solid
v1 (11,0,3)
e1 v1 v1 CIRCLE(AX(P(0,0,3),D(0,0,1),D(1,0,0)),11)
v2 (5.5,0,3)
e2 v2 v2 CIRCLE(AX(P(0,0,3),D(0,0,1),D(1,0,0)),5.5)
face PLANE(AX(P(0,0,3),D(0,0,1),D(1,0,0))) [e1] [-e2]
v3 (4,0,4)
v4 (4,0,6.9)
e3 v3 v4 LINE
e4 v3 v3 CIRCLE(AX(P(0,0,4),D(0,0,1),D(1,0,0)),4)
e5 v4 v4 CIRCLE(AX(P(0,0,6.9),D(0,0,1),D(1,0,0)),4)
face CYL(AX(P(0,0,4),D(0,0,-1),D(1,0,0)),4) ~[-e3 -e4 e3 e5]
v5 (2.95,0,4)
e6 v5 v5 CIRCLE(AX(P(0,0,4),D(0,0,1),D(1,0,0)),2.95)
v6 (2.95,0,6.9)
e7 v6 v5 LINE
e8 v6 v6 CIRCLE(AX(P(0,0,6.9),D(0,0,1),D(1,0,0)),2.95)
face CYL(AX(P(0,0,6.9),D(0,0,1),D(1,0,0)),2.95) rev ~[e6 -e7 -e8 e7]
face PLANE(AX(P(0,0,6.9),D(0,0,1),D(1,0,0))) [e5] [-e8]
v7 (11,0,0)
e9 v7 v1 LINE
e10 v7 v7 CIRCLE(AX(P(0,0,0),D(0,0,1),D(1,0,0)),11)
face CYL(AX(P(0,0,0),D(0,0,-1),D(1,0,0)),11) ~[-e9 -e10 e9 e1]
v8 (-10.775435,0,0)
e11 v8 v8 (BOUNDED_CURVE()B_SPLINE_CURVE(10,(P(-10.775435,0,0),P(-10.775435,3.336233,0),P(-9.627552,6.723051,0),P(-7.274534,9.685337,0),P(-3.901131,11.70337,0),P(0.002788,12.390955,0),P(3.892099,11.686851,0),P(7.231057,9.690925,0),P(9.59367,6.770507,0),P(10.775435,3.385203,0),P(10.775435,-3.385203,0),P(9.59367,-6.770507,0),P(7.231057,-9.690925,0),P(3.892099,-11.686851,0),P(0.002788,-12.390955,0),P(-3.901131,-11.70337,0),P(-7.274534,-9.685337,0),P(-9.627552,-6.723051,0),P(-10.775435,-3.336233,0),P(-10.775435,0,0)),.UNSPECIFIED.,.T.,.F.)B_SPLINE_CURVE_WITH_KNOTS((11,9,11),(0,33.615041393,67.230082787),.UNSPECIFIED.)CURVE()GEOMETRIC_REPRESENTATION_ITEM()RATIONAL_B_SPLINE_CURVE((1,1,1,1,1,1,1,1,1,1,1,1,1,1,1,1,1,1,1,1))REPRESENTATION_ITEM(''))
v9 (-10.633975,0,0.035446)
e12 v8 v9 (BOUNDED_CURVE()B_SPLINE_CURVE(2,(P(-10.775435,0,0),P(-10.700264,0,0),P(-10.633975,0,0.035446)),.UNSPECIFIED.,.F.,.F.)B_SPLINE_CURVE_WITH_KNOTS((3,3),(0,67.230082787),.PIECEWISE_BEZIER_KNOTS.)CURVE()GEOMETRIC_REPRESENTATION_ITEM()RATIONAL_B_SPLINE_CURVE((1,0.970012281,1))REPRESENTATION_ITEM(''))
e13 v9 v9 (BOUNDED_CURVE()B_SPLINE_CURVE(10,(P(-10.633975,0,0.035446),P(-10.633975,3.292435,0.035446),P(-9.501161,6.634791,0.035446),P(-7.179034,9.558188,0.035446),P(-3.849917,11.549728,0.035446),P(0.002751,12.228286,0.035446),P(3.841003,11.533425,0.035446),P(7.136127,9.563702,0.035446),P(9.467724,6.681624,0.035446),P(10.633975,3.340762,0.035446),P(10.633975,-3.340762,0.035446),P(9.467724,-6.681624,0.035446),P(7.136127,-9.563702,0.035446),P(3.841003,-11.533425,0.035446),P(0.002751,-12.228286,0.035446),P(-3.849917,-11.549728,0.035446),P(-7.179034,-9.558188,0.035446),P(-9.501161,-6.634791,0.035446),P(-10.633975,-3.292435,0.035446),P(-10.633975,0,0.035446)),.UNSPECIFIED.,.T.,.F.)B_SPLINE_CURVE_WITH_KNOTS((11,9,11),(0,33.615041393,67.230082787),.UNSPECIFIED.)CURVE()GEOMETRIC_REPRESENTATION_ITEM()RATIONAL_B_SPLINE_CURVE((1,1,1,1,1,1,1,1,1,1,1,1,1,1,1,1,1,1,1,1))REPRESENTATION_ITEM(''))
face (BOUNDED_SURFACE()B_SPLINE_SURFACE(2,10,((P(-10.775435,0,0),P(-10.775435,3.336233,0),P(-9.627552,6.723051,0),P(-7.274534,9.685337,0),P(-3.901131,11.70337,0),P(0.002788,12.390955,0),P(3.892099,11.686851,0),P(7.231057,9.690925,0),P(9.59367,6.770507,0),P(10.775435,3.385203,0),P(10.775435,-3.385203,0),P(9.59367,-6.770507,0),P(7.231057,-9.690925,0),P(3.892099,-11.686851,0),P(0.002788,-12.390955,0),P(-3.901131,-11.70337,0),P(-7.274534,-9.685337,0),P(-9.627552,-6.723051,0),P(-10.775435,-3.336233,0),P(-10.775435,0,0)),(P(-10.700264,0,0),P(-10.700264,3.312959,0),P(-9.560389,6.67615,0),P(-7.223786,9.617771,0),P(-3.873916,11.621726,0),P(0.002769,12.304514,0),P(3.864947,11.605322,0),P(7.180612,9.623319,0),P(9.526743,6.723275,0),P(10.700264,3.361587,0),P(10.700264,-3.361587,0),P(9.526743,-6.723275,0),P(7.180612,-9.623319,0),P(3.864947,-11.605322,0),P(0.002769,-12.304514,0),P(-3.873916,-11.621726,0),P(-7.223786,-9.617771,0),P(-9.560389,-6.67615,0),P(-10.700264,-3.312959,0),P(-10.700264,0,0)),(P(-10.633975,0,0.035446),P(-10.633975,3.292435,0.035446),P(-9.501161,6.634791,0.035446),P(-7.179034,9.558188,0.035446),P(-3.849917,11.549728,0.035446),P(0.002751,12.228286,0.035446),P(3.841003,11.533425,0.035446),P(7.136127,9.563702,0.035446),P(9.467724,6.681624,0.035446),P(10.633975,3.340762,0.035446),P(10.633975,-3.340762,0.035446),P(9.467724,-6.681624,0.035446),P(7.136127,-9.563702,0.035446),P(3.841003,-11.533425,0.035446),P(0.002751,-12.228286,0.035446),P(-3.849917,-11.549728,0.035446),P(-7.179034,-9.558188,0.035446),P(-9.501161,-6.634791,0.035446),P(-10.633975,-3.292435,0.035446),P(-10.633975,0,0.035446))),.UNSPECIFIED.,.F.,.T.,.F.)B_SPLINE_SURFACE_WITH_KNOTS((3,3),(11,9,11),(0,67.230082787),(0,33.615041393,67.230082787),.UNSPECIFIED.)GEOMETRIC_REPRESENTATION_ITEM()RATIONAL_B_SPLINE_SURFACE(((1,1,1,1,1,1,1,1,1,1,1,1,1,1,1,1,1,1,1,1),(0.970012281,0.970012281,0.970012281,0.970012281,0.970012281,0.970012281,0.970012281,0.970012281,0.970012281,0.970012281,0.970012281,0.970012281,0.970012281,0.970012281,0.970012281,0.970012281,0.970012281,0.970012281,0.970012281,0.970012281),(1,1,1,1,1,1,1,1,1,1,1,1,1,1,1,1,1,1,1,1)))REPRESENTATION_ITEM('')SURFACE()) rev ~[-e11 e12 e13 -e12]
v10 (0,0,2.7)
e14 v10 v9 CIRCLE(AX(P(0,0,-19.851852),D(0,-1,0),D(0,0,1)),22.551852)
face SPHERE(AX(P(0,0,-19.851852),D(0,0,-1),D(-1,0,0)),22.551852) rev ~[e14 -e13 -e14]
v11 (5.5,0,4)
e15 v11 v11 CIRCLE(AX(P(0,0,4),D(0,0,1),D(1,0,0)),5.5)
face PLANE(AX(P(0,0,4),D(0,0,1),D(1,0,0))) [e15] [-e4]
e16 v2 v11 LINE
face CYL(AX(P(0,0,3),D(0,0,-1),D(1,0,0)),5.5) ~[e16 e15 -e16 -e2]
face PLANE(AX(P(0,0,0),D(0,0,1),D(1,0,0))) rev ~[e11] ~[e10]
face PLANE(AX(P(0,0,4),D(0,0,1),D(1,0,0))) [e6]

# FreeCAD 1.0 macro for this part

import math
import FreeCAD as App
import Part
import Sketcher


def edges_at(feature, points):
    """Names of the edges that pass closest to the given points."""
    edges = feature.Shape.Edges
    near = lambda p: min(range(len(edges)), key=lambda i: edges[i].distToShape(Part.Vertex(*p))[0])
    return sorted({f"Edge{near(p) + 1}" for p in points})

doc = App.newDocument("Part")
body = doc.addObject("PartDesign::Body", "Body")

# Sketch on XY plane
sketch1 = body.newObject("Sketcher::SketchObject", "Sketch")
sketch1.AttachmentSupport = (doc.getObject("XY_Plane"), [""])
sketch1.MapMode = "FlatFace"
sketch1.addGeometry(Part.Circle(App.Vector(0, 0, 0), App.Vector(0, 0, 1), 11), False)
sketch1.addConstraint(Sketcher.Constraint("Coincident", 0, 3, -1, 1))
sketch1.addConstraint(Sketcher.Constraint("Diameter", 0, 22.0))
pad1 = body.newObject("PartDesign::Pad", "Pad")
pad1.Profile = sketch1
pad1.Length = 3

# Sketch on XZ plane
sketch2 = body.newObject("Sketcher::SketchObject", "Sketch001")
sketch2.AttachmentSupport = (doc.getObject("XZ_Plane"), [""])
sketch2.MapMode = "FlatFace"
sketch2.addGeometry(Part.LineSegment(App.Vector(0, -42, 0), App.Vector(0, 3, 0)), False)
sketch2.addGeometry(Part.ArcOfCircle(Part.Circle(App.Vector(0, -20, 0), App.Vector(0, 0, 1), 23), math.radians(90), math.radians(270)), False)
sketch2.addConstraint(Sketcher.Constraint("Coincident", 0, 1, 1, 2))
sketch2.addConstraint(Sketcher.Constraint("Coincident", 1, 1, 0, 2))
sketch2.addConstraint(Sketcher.Constraint("Vertical", 0))
sketch2.addConstraint(Sketcher.Constraint("PointOnObject", 1, 3, -2))
sketch2.addConstraint(Sketcher.Constraint("PointOnObject", 0, 1, -2))
sketch2.addConstraint(Sketcher.Constraint("DistanceY", -1, 1, 1, 1, 2.7))
sketch2.addConstraint(Sketcher.Constraint("Radius", 1, 22.551852))
groove = body.newObject("PartDesign::Groove", "Groove")
groove.Profile = sketch2
groove.ReferenceAxis = (sketch2, ["V_Axis"])
groove.Angle = 360

# Sketch on XY plane
sketch3 = body.newObject("Sketcher::SketchObject", "Sketch002")
sketch3.AttachmentSupport = (doc.getObject("XY_Plane"), [""])
sketch3.MapMode = "FlatFace"
sketch3.AttachmentOffset = App.Placement(App.Vector(0, 0, 3), App.Rotation())
sketch3.addGeometry(Part.Circle(App.Vector(0, 0, 0), App.Vector(0, 0, 1), 6), False)
sketch3.addConstraint(Sketcher.Constraint("Coincident", 0, 3, -1, 1))
sketch3.addConstraint(Sketcher.Constraint("Diameter", 0, 11.0))
pad2 = body.newObject("PartDesign::Pad", "Pad001")
pad2.Profile = sketch3
pad2.Length = 1

# Sketch on XY plane
sketch4 = body.newObject("Sketcher::SketchObject", "Sketch003")
sketch4.AttachmentSupport = (doc.getObject("XY_Plane"), [""])
sketch4.MapMode = "FlatFace"
sketch4.AttachmentOffset = App.Placement(App.Vector(0, 0, 4), App.Rotation())
sketch4.addGeometry(Part.Circle(App.Vector(0, 0, 0), App.Vector(0, 0, 1), 4), False)
sketch4.addConstraint(Sketcher.Constraint("Coincident", 0, 3, -1, 1))
sketch4.addConstraint(Sketcher.Constraint("Diameter", 0, 8.0))
pad3 = body.newObject("PartDesign::Pad", "Pad002")
pad3.Profile = sketch4
pad3.Length = 2.9

# Sketch on XY plane
sketch5 = body.newObject("Sketcher::SketchObject", "Sketch004")
sketch5.AttachmentSupport = (doc.getObject("XY_Plane"), [""])
sketch5.MapMode = "FlatFace"
sketch5.AttachmentOffset = App.Placement(App.Vector(0, 0, 6.9), App.Rotation())
sketch5.addGeometry(Part.Circle(App.Vector(0, 0, 0), App.Vector(0, 0, 1), 3), False)
sketch5.addConstraint(Sketcher.Constraint("Coincident", 0, 3, -1, 1))
sketch5.addConstraint(Sketcher.Constraint("Diameter", 0, 5.9))
pocket1 = body.newObject("PartDesign::Pocket", "Pocket")
pocket1.Profile = sketch5
pocket1.Length = 2.9
doc.recompute()

fillet = body.newObject("PartDesign::Fillet", "Fillet")
fillet.Base = (pocket1, edges_at(pocket1, [(10.7, 0, 0)]))
fillet.Radius = 0.3

doc.recompute()
